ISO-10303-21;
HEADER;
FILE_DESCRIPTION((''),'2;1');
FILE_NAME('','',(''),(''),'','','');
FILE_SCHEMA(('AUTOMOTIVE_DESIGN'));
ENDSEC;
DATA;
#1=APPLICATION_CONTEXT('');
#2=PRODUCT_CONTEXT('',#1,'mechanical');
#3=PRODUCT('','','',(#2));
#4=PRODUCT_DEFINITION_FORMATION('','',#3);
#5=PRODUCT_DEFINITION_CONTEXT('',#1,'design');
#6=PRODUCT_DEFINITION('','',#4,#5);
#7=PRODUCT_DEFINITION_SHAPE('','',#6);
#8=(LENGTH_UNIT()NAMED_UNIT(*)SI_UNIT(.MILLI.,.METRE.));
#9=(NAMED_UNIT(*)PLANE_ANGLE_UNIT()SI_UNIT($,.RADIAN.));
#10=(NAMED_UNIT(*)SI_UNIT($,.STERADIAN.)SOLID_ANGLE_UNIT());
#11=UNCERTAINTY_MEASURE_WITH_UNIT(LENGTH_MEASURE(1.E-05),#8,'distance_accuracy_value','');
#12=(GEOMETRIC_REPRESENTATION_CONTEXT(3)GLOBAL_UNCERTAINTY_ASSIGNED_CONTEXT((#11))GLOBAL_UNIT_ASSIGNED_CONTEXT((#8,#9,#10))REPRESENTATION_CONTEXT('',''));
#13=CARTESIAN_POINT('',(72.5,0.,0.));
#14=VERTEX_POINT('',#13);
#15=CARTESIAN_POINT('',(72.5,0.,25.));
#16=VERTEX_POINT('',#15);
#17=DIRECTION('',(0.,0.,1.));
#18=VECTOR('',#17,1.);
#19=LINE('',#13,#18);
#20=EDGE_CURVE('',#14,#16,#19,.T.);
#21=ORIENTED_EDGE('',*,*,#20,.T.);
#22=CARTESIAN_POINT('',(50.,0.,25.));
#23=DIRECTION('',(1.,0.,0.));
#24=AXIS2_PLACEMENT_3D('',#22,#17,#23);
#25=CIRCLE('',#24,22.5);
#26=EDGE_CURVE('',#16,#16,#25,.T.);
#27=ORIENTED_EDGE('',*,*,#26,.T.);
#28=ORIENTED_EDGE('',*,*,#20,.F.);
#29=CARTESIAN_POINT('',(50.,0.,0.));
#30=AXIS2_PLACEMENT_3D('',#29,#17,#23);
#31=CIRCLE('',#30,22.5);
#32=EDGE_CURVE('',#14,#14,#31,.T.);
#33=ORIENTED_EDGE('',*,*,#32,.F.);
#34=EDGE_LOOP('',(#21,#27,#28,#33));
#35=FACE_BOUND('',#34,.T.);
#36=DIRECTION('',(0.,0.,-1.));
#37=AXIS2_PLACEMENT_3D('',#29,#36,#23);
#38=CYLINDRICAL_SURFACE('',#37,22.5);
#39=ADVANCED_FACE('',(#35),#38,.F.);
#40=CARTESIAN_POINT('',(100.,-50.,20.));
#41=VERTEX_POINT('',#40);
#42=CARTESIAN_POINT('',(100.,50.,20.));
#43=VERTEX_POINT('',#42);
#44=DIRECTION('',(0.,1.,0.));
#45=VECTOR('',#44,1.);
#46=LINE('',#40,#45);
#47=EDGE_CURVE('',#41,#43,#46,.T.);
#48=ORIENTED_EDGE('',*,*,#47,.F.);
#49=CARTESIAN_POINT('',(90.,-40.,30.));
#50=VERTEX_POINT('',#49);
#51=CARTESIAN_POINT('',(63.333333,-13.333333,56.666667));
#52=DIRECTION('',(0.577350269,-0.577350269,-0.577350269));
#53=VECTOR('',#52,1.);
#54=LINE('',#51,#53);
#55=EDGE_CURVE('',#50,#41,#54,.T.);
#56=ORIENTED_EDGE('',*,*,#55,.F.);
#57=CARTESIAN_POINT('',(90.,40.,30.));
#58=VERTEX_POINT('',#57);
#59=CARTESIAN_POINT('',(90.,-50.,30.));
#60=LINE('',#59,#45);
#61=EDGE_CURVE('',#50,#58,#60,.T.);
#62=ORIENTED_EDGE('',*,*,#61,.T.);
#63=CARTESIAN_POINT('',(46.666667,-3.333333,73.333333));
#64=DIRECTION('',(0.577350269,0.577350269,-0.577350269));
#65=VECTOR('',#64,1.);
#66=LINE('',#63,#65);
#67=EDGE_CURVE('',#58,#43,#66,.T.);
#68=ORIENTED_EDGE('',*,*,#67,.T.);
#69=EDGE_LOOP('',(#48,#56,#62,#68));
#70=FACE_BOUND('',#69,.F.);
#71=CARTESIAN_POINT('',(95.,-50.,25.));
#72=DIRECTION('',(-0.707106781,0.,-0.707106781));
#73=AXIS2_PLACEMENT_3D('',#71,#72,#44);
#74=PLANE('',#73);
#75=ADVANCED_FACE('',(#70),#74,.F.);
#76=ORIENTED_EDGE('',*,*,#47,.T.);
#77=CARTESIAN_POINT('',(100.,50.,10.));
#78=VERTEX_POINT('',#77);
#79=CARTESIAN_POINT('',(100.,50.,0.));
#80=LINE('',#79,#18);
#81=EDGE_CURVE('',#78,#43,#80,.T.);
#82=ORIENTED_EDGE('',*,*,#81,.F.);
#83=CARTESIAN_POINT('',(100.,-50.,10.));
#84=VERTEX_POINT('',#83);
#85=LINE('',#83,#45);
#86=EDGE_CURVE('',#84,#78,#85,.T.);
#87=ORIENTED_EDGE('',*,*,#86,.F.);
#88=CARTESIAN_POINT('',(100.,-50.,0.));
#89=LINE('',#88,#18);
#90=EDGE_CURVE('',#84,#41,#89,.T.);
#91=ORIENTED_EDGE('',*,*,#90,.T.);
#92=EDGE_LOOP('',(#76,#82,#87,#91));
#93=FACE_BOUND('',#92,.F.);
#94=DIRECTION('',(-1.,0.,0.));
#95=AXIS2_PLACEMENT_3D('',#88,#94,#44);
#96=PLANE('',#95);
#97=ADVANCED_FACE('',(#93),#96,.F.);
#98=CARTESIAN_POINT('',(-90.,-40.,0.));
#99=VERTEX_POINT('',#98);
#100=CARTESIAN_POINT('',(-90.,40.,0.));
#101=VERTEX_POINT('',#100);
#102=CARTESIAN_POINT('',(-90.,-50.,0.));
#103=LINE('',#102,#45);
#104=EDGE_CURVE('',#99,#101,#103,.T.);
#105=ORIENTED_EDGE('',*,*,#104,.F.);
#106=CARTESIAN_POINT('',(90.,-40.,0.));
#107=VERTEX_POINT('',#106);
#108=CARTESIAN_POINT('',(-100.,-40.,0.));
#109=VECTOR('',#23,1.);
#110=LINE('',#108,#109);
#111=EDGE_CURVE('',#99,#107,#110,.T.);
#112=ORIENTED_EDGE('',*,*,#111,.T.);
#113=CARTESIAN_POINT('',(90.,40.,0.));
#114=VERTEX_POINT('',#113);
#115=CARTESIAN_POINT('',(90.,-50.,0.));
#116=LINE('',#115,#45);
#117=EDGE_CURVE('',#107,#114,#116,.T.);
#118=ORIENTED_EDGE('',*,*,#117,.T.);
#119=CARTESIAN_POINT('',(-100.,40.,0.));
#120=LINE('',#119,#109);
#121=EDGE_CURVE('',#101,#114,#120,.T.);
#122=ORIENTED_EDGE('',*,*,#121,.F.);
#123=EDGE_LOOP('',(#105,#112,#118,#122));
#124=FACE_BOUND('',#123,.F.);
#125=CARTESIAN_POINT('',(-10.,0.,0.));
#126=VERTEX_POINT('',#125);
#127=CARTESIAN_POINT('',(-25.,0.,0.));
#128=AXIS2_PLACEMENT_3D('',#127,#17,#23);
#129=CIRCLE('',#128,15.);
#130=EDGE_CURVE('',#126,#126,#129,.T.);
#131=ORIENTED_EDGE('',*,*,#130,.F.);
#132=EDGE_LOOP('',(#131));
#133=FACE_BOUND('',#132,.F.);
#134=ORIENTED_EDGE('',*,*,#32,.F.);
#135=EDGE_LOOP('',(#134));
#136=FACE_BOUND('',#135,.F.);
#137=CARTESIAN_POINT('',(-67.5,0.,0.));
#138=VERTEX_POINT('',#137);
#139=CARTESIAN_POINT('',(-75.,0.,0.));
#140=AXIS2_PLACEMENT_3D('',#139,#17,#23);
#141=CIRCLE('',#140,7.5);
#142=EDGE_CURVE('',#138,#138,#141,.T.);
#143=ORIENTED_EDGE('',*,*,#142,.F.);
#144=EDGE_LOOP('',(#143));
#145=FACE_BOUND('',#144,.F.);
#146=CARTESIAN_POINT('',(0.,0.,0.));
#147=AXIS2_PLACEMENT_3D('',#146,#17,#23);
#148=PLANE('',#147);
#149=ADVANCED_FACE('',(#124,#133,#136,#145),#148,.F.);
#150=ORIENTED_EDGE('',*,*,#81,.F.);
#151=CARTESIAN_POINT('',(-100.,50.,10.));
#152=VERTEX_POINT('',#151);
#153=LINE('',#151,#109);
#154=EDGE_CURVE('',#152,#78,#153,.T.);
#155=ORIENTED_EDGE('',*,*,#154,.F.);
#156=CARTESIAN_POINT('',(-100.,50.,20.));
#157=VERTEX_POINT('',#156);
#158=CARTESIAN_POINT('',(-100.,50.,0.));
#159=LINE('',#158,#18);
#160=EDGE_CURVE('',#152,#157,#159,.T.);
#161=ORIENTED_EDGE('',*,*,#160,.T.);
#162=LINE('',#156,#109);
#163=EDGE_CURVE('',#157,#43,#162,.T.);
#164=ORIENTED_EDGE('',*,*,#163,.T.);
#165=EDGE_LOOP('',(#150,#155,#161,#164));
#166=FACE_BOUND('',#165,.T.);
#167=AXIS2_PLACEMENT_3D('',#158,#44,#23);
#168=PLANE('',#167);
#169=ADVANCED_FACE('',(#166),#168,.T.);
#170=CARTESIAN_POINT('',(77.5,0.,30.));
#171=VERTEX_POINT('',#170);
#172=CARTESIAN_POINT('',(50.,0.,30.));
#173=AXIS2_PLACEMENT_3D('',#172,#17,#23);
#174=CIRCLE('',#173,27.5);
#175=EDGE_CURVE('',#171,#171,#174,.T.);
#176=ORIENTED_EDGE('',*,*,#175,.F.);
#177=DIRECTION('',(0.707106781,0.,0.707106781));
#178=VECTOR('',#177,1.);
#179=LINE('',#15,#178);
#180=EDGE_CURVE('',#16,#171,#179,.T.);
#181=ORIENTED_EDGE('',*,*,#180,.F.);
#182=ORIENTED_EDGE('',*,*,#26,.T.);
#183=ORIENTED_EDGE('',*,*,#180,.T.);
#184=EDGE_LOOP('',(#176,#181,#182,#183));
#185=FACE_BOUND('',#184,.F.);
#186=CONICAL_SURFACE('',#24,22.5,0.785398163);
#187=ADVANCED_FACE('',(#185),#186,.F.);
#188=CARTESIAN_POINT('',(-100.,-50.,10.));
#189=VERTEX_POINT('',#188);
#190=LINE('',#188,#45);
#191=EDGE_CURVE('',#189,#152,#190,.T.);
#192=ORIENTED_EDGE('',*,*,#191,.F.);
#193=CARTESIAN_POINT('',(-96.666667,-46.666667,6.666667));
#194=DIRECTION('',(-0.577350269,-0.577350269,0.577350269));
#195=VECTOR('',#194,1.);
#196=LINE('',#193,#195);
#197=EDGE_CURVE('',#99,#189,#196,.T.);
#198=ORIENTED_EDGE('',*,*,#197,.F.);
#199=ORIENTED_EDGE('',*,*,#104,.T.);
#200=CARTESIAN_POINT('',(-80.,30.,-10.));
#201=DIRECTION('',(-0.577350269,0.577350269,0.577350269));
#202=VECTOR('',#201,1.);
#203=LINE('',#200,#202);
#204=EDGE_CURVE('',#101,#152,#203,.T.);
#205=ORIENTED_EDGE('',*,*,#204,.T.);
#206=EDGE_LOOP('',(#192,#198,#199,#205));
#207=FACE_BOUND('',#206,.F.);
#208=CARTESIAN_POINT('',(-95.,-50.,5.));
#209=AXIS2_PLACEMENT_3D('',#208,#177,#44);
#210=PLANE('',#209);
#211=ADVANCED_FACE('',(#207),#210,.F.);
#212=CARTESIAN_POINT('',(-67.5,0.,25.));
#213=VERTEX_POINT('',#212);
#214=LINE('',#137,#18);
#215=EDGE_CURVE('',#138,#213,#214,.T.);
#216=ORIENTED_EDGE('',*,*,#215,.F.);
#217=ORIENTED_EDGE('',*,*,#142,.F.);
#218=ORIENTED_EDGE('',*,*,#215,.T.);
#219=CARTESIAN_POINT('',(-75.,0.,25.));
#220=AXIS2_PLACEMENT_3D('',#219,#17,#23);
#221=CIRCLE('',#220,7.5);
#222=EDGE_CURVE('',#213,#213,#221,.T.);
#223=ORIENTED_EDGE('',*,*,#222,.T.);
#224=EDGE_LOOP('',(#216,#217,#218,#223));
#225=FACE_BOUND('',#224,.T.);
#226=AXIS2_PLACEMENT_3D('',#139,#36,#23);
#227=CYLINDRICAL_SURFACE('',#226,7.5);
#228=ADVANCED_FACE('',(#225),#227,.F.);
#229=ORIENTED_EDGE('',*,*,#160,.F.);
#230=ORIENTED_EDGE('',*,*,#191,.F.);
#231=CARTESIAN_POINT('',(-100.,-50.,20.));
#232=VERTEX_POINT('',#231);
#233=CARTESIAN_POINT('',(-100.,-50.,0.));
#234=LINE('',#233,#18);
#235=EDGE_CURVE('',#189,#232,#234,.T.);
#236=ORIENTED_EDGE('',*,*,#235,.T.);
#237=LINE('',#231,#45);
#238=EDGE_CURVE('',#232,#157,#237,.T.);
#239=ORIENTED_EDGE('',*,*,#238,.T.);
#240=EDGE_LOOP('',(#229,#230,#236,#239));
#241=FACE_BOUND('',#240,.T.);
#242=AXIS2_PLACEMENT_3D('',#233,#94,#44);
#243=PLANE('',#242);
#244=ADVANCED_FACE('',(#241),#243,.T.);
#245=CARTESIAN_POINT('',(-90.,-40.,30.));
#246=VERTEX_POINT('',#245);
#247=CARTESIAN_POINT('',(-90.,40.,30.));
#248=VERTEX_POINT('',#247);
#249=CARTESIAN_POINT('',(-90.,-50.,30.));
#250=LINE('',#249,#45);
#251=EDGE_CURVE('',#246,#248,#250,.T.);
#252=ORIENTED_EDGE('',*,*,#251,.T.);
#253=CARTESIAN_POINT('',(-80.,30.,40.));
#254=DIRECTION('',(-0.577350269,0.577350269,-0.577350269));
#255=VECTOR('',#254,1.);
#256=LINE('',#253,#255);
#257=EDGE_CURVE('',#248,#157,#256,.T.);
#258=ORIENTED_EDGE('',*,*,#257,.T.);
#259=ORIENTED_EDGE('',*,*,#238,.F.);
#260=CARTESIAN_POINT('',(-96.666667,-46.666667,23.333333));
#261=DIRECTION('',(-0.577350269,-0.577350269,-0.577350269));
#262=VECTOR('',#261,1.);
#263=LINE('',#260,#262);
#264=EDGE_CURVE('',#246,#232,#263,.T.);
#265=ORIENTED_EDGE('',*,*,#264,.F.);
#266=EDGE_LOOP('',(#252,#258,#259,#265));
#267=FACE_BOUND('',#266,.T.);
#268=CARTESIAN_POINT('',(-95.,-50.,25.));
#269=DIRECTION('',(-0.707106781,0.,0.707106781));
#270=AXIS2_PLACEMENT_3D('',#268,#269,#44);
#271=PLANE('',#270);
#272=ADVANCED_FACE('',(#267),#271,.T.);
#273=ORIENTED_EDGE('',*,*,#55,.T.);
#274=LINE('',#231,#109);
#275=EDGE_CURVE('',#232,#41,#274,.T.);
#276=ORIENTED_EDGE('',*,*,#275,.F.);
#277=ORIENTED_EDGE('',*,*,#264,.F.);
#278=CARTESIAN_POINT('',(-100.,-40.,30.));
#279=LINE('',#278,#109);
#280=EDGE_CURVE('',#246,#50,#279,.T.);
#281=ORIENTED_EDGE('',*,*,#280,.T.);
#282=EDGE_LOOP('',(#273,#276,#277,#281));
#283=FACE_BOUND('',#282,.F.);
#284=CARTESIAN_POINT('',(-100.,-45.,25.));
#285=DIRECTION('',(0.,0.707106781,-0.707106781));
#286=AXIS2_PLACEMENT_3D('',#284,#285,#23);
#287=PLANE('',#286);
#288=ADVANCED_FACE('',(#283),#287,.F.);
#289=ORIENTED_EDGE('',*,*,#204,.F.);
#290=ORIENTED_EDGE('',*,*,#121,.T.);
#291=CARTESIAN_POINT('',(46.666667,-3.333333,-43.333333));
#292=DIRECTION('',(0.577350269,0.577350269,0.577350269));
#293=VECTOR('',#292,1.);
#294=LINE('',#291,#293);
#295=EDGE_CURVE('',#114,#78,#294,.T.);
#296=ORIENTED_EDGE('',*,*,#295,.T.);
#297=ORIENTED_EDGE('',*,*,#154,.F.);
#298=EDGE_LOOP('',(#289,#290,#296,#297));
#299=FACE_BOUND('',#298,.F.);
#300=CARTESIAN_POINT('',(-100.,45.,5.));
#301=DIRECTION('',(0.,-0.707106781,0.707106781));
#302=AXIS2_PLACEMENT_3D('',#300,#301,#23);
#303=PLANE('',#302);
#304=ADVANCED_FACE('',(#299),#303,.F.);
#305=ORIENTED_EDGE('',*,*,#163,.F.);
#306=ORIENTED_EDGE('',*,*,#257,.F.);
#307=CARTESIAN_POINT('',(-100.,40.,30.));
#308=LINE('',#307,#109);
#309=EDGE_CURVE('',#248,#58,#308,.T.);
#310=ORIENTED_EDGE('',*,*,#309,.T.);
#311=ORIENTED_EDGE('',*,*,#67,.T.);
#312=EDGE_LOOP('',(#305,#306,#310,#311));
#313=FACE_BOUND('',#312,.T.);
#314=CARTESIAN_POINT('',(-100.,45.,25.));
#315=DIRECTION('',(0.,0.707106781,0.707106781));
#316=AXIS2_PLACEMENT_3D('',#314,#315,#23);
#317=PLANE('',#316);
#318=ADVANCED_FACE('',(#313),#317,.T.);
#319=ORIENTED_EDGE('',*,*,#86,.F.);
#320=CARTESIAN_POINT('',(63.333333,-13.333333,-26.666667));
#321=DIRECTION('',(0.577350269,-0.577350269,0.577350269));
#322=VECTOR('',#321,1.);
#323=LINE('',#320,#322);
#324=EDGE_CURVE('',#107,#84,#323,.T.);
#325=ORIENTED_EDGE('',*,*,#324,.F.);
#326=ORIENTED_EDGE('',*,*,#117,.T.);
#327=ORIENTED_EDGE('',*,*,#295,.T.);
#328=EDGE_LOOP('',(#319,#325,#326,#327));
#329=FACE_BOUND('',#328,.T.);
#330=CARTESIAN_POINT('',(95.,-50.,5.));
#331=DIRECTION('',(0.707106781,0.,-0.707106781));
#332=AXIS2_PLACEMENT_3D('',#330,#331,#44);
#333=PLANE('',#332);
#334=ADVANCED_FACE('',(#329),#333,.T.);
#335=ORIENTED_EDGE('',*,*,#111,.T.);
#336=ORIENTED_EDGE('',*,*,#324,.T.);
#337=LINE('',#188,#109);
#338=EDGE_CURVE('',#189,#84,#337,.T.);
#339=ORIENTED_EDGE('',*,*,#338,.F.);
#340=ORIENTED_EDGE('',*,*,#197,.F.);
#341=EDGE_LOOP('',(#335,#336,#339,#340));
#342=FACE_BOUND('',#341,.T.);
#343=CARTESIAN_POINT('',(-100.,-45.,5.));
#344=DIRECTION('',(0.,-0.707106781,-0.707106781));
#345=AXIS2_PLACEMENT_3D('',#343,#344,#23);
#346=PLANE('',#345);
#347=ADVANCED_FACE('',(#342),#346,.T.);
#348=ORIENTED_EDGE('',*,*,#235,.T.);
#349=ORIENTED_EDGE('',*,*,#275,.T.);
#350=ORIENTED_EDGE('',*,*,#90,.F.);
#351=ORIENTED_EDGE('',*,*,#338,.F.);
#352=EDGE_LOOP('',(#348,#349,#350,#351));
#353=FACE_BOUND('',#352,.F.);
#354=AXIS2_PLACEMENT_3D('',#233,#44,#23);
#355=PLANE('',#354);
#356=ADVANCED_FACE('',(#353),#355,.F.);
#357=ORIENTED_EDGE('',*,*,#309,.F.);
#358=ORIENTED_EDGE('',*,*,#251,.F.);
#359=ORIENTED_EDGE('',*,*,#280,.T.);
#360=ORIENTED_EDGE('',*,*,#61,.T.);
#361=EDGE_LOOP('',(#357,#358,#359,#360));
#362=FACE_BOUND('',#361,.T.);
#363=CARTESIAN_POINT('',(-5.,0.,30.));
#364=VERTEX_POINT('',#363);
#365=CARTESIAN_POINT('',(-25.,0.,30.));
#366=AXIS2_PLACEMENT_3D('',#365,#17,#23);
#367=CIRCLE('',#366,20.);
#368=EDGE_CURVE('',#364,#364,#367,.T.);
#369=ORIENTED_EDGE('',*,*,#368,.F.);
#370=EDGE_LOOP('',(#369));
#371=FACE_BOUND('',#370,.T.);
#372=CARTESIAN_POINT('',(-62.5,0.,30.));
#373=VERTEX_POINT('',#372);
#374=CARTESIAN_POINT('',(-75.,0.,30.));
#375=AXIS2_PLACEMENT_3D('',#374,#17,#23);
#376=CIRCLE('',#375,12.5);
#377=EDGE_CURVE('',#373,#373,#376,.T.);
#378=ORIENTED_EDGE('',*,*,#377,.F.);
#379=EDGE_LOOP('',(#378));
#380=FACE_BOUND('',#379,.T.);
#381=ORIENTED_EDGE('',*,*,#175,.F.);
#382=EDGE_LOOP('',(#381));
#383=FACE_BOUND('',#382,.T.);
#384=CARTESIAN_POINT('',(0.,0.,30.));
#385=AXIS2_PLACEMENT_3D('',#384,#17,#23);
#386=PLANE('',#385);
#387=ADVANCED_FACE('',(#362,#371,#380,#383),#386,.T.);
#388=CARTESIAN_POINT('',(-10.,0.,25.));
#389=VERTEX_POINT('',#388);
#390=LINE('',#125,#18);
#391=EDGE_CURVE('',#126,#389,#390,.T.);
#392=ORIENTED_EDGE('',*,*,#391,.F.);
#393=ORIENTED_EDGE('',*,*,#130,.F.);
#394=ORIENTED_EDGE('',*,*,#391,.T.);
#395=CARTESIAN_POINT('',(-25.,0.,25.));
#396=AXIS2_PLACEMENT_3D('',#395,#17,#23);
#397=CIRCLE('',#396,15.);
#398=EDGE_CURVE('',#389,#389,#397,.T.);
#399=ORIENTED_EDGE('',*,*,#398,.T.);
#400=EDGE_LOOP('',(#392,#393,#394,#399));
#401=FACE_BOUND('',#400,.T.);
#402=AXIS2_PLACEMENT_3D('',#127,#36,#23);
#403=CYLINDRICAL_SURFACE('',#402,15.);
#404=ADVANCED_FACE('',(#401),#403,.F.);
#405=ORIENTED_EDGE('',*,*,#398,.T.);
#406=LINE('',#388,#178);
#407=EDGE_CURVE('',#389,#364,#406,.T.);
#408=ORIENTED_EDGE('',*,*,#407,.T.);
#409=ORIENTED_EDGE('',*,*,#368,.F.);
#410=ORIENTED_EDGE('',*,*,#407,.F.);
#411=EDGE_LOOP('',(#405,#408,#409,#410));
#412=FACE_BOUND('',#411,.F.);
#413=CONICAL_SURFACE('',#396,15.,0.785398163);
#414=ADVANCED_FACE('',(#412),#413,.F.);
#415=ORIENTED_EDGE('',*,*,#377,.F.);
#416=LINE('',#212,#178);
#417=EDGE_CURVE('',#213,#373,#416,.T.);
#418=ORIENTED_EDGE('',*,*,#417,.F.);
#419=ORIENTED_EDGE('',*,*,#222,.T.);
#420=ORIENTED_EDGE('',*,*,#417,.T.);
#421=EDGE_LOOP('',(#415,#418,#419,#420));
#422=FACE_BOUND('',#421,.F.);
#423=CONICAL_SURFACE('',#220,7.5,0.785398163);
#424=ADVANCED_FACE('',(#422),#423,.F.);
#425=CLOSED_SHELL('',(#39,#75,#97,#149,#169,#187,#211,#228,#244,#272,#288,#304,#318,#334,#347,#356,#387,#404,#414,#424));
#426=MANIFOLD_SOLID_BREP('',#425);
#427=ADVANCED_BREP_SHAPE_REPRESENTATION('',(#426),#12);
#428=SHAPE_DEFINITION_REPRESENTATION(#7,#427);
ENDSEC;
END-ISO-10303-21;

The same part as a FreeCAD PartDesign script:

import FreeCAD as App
import Part
import Sketcher


def edges_at(feature, points):
    """Names of the edges that pass closest to the given points."""
    edges = feature.Shape.Edges
    near = lambda p: min(range(len(edges)), key=lambda i: edges[i].distToShape(Part.Vertex(*p))[0])
    return sorted({f"Edge{near(p) + 1}" for p in points})


def add_polygon(sketch, points):
    """Adds a closed chain of lines whose ends are joined by coincident constraints."""
    first, n = sketch.GeometryCount, len(points)
    for a, b in zip(points, points[1:] + points[:1]):
        sketch.addGeometry(Part.LineSegment(App.Vector(*a, 0), App.Vector(*b, 0)), False)
    for i in range(n):
        sketch.addConstraint(Sketcher.Constraint("Coincident", first + i, 2, first + (i + 1) % n, 1))

doc = App.newDocument("Part")
body = doc.addObject("PartDesign::Body", "Body")

sketch1 = body.newObject("Sketcher::SketchObject", "Sketch")
sketch1.AttachmentSupport = (doc.getObject("XY_Plane"), [""])
sketch1.MapMode = "FlatFace"
add_polygon(sketch1, [(-100, 50), (-100, -50), (100, -50), (100, 50)])
sketch1.addGeometry(Part.Circle(App.Vector(-75, 0, 0), App.Vector(0, 0, 1), 8), False)
sketch1.addGeometry(Part.Circle(App.Vector(-25, 0, 0), App.Vector(0, 0, 1), 15), False)
sketch1.addGeometry(Part.Circle(App.Vector(50, 0, 0), App.Vector(0, 0, 1), 22), False)
sketch1.addConstraint([
    Sketcher.Constraint("Vertical", 0),
    Sketcher.Constraint("Horizontal", 1),
    Sketcher.Constraint("Vertical", 2),
    Sketcher.Constraint("Horizontal", 3),
    Sketcher.Constraint("Symmetric", 0, 2, 2, 2, -1, 1),
    Sketcher.Constraint("PointOnObject", 4, 3, -1),
    Sketcher.Constraint("PointOnObject", 5, 3, -1),
    Sketcher.Constraint("PointOnObject", 6, 3, -1),
    Sketcher.Constraint("Diameter", 4, 15.0),
    Sketcher.Constraint("Diameter", 5, 30.0),
    Sketcher.Constraint("Diameter", 6, 45.0),
    Sketcher.Constraint("DistanceX", 1, 1, 1, 2, 200.0),
    Sketcher.Constraint("DistanceY", 0, 2, 0, 1, 100.0),
    Sketcher.Constraint("DistanceX", 4, 3, -1, 1, 75.0),
    Sketcher.Constraint("DistanceX", 5, 3, -1, 1, 25.0),
    Sketcher.Constraint("DistanceX", -1, 1, 6, 3, 50.0),
])
pad1 = body.newObject("PartDesign::Pad", "Pad")
pad1.Profile = sketch1
pad1.Length = 30
doc.recompute()

chamfer = body.newObject("PartDesign::Chamfer", "Chamfer")
chamfer.Base = (pad1, edges_at(pad1, [(-82.5, 0, 30), (-40, 0, 30), (27.5, 0, 30)]))
chamfer.ChamferType = "Two distances"
chamfer.Size = 5
chamfer.Size2 = 5
doc.recompute()

chamfer2 = body.newObject("PartDesign::Chamfer", "Chamfer001")
chamfer2.Base = (chamfer, edges_at(chamfer, [
    (-100, 0, 30),
    (-100, 0, 0),
    (0, -50, 0),
    (0, -50, 30),
    (100, 0, 0),
    (100, 0, 30),
    (0, 50, 0),
    (0, 50, 30),
]))
chamfer2.ChamferType = "Two distances"
chamfer2.Size = 10
chamfer2.Size2 = 10

doc.recompute()
